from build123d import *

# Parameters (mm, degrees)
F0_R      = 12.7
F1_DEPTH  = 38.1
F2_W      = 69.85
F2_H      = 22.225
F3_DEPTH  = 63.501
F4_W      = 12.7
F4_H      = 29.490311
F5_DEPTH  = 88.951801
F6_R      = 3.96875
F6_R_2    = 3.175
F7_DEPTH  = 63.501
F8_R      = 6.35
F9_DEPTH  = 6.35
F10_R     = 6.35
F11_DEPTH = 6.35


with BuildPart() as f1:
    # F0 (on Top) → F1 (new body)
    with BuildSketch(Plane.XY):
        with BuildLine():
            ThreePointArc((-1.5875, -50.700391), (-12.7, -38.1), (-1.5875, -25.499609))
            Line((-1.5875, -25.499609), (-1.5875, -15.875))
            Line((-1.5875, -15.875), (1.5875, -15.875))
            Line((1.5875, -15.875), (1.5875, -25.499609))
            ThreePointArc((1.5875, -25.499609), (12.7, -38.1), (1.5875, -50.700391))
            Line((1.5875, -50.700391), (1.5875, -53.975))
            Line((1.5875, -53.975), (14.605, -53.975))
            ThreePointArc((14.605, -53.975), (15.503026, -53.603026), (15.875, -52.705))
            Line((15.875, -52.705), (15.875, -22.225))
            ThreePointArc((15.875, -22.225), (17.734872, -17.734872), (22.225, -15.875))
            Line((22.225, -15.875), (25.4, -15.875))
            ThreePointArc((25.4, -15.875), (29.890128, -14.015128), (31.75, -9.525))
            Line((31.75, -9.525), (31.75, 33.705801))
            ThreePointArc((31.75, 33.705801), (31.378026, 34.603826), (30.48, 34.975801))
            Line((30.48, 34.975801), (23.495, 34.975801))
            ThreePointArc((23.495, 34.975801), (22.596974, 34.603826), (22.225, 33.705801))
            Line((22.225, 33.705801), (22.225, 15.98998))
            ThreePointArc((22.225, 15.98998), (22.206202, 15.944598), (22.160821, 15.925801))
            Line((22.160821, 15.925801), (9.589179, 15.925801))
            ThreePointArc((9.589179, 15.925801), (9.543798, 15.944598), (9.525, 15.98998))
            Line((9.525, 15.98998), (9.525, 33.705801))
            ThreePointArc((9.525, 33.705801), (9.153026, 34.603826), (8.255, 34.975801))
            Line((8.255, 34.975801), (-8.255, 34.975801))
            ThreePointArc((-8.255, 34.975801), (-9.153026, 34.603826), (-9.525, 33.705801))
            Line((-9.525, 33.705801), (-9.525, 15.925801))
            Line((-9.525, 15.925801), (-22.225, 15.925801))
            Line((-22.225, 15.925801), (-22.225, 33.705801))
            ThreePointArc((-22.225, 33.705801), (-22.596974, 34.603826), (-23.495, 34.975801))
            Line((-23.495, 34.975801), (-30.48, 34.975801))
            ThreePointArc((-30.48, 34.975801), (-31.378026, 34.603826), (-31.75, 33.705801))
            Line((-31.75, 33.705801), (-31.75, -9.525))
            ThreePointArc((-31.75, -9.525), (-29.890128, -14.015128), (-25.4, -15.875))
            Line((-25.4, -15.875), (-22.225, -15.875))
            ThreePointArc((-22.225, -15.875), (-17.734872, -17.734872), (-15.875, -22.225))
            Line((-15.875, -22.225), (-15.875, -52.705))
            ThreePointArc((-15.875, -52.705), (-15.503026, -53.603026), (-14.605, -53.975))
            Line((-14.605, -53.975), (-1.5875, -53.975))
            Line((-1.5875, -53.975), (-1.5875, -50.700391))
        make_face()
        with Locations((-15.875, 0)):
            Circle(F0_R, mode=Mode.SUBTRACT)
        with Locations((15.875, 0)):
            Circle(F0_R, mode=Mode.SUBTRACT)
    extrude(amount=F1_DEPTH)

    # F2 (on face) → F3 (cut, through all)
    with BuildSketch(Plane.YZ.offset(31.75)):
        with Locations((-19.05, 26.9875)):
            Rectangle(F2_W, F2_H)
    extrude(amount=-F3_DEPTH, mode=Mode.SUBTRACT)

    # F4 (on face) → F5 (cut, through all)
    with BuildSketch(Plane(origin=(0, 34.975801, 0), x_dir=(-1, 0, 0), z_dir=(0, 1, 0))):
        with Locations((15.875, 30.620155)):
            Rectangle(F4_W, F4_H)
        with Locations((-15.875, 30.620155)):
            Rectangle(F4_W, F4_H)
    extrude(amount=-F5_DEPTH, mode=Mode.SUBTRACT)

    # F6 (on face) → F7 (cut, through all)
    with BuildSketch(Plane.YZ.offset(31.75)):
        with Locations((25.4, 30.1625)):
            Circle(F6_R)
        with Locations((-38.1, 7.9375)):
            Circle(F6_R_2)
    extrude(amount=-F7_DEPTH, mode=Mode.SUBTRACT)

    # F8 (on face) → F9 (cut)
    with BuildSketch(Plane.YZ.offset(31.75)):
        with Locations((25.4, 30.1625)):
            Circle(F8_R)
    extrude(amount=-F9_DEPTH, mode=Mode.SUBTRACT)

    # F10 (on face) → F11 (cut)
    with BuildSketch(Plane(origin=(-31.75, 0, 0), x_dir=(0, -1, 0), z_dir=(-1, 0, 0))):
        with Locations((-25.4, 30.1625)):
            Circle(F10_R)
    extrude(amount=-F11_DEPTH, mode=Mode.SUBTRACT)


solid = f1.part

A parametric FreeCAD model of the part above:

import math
import FreeCAD as App
import Part
import Sketcher
Q = App.Units.Quantity

doc = App.newDocument("Part")
body = doc.addObject("PartDesign::Body", "Body")

# Sketch on XY plane
sketch1 = body.newObject("Sketcher::SketchObject", "Sketch")
sketch1.AttachmentSupport = (doc.getObject("XY_Plane"), [""])
sketch1.MapMode = "FlatFace"
sketch1.addGeometry([
    Part.ArcOfCircle(Part.Circle(App.Vector(0, -38.1, 0), App.Vector(0, 0, 1), 12.7), math.radians(97), math.radians(263)),  # 0
    Part.LineSegment(App.Vector(-1.59, -25.5, 0), App.Vector(-1.59, -15.88, 0)),  # 1
    Part.LineSegment(App.Vector(-1.59, -15.88, 0), App.Vector(1.59, -15.88, 0)),  # 2
    Part.LineSegment(App.Vector(1.59, -15.88, 0), App.Vector(1.59, -25.5, 0)),  # 3
    Part.ArcOfCircle(Part.Circle(App.Vector(0, -38.1, 0), App.Vector(0, 0, 1), 12.7), math.radians(-83), math.radians(83)),  # 4
    Part.LineSegment(App.Vector(1.59, -50.7, 0), App.Vector(1.59, -53.98, 0)),  # 5
    Part.LineSegment(App.Vector(1.59, -53.98, 0), App.Vector(14.61, -53.98, 0)),  # 6
    Part.ArcOfCircle(Part.Circle(App.Vector(14.61, -52.71, 0), App.Vector(0, 0, 1), 1.27), math.radians(-90), math.radians(0)),  # 7
    Part.LineSegment(App.Vector(15.88, -52.7, 0), App.Vector(15.88, -22.23, 0)),  # 8
    Part.ArcOfCircle(Part.Circle(App.Vector(22.23, -22.23, 0), App.Vector(0, 0, 1), 6.35), math.radians(90), math.radians(180)),  # 9
    Part.LineSegment(App.Vector(22.23, -15.88, 0), App.Vector(25.4, -15.88, 0)),  # 10
    Part.ArcOfCircle(Part.Circle(App.Vector(25.4, -9.52, 0), App.Vector(0, 0, 1), 6.35), math.radians(-90), math.radians(0)),  # 11
    Part.LineSegment(App.Vector(31.75, -9.53, 0), App.Vector(31.75, 33.71, 0)),  # 12
    Part.ArcOfCircle(Part.Circle(App.Vector(30.48, 33.71, 0), App.Vector(0, 0, 1), 1.27), math.radians(0), math.radians(90)),  # 13
    Part.LineSegment(App.Vector(30.48, 34.98, 0), App.Vector(23.5, 34.98, 0)),  # 14
    Part.ArcOfCircle(Part.Circle(App.Vector(23.5, 33.71, 0), App.Vector(0, 0, 1), 1.27), math.radians(90), math.radians(180)),  # 15
    Part.LineSegment(App.Vector(22.23, 33.71, 0), App.Vector(22.23, 15.99, 0)),  # 16
    Part.ArcOfCircle(Part.Circle(App.Vector(22.16, 15.99, 0), App.Vector(0, 0, 1), 0.06), math.radians(-90), math.radians(0)),  # 17
    Part.LineSegment(App.Vector(22.16, 15.93, 0), App.Vector(9.59, 15.93, 0)),  # 18
    Part.ArcOfCircle(Part.Circle(App.Vector(9.59, 15.99, 0), App.Vector(0, 0, 1), 0.06), math.radians(180), math.radians(270)),  # 19
    Part.LineSegment(App.Vector(9.53, 15.99, 0), App.Vector(9.53, 33.71, 0)),  # 20
    Part.ArcOfCircle(Part.Circle(App.Vector(8.25, 33.71, 0), App.Vector(0, 0, 1), 1.27), math.radians(0), math.radians(90)),  # 21
    Part.LineSegment(App.Vector(8.26, 34.98, 0), App.Vector(-8.26, 34.98, 0)),  # 22
    Part.ArcOfCircle(Part.Circle(App.Vector(-8.25, 33.71, 0), App.Vector(0, 0, 1), 1.27), math.radians(90), math.radians(180)),  # 23
    Part.LineSegment(App.Vector(-9.53, 33.71, 0), App.Vector(-9.53, 15.93, 0)),  # 24
    Part.LineSegment(App.Vector(-9.53, 15.93, 0), App.Vector(-22.23, 15.93, 0)),  # 25
    Part.LineSegment(App.Vector(-22.23, 15.93, 0), App.Vector(-22.23, 33.71, 0)),  # 26
    Part.ArcOfCircle(Part.Circle(App.Vector(-23.5, 33.71, 0), App.Vector(0, 0, 1), 1.27), math.radians(0), math.radians(90)),  # 27
    Part.LineSegment(App.Vector(-23.5, 34.98, 0), App.Vector(-30.48, 34.98, 0)),  # 28
    Part.ArcOfCircle(Part.Circle(App.Vector(-30.48, 33.71, 0), App.Vector(0, 0, 1), 1.27), math.radians(90), math.radians(180)),  # 29
    Part.LineSegment(App.Vector(-31.75, 33.71, 0), App.Vector(-31.75, -9.53, 0)),  # 30
    Part.ArcOfCircle(Part.Circle(App.Vector(-25.4, -9.52, 0), App.Vector(0, 0, 1), 6.35), math.radians(-180), math.radians(-90)),  # 31
    Part.LineSegment(App.Vector(-25.4, -15.88, 0), App.Vector(-22.23, -15.88, 0)),  # 32
    Part.ArcOfCircle(Part.Circle(App.Vector(-22.23, -22.23, 0), App.Vector(0, 0, 1), 6.35), math.radians(0), math.radians(90)),  # 33
    Part.LineSegment(App.Vector(-15.88, -22.23, 0), App.Vector(-15.88, -52.7, 0)),  # 34
    Part.ArcOfCircle(Part.Circle(App.Vector(-14.61, -52.71, 0), App.Vector(0, 0, 1), 1.27), math.radians(180), math.radians(270)),  # 35
    Part.LineSegment(App.Vector(-14.61, -53.98, 0), App.Vector(-1.59, -53.98, 0)),  # 36
    Part.LineSegment(App.Vector(-1.59, -53.98, 0), App.Vector(-1.59, -50.7, 0)),  # 37
    Part.Circle(App.Vector(-15.88, 0, 0), App.Vector(0, 0, 1), 12.7),  # 38
    Part.Circle(App.Vector(15.88, 0, 0), App.Vector(0, 0, 1), 12.7),  # 39
], False)
sketch1.addConstraint([
    Sketcher.Constraint("Coincident", 0, 1, 1, 1),
    Sketcher.Constraint("Coincident", 1, 2, 2, 1),
    Sketcher.Constraint("Coincident", 2, 2, 3, 1),
    Sketcher.Constraint("Coincident", 3, 2, 4, 2),
    Sketcher.Constraint("Coincident", 4, 1, 5, 1),
    Sketcher.Constraint("Coincident", 5, 2, 6, 1),
    Sketcher.Constraint("Tangent", 6, 2, 7, 1),
    Sketcher.Constraint("Tangent", 7, 2, 8, 1),
    Sketcher.Constraint("Tangent", 8, 2, 9, 2),
    Sketcher.Constraint("Tangent", 9, 1, 10, 1),
    Sketcher.Constraint("Tangent", 10, 2, 11, 1),
    Sketcher.Constraint("Tangent", 11, 2, 12, 1),
    Sketcher.Constraint("Tangent", 12, 2, 13, 1),
    Sketcher.Constraint("Tangent", 13, 2, 14, 1),
    Sketcher.Constraint("Tangent", 14, 2, 15, 1),
    Sketcher.Constraint("Tangent", 15, 2, 16, 1),
    Sketcher.Constraint("Coincident", 16, 2, 17, 2),
    Sketcher.Constraint("Coincident", 17, 1, 18, 1),
    Sketcher.Constraint("Coincident", 18, 2, 19, 2),
    Sketcher.Constraint("Coincident", 19, 1, 20, 1),
    Sketcher.Constraint("Tangent", 20, 2, 21, 1),
    Sketcher.Constraint("Tangent", 21, 2, 22, 1),
    Sketcher.Constraint("Tangent", 22, 2, 23, 1),
    Sketcher.Constraint("Tangent", 23, 2, 24, 1),
    Sketcher.Constraint("Coincident", 24, 2, 25, 1),
    Sketcher.Constraint("Coincident", 25, 2, 26, 1),
    Sketcher.Constraint("Tangent", 26, 2, 27, 1),
    Sketcher.Constraint("Tangent", 27, 2, 28, 1),
    Sketcher.Constraint("Tangent", 28, 2, 29, 1),
    Sketcher.Constraint("Tangent", 29, 2, 30, 1),
    Sketcher.Constraint("Tangent", 30, 2, 31, 1),
    Sketcher.Constraint("Tangent", 31, 2, 32, 1),
    Sketcher.Constraint("Tangent", 32, 2, 33, 2),
    Sketcher.Constraint("Tangent", 33, 1, 34, 1),
    Sketcher.Constraint("Tangent", 34, 2, 35, 1),
    Sketcher.Constraint("Tangent", 35, 2, 36, 1),
    Sketcher.Constraint("Coincident", 36, 2, 37, 1),
    Sketcher.Constraint("Coincident", 37, 2, 0, 2),
    Sketcher.Constraint("Vertical", 1),
    Sketcher.Constraint("Horizontal", 2),
    Sketcher.Constraint("Vertical", 3),
    Sketcher.Constraint("Vertical", 5),
    Sketcher.Constraint("Horizontal", 6),
    Sketcher.Constraint("Vertical", 8),
    Sketcher.Constraint("Horizontal", 10),
    Sketcher.Constraint("Vertical", 12),
    Sketcher.Constraint("Horizontal", 14),
    Sketcher.Constraint("Vertical", 16),
    Sketcher.Constraint("Horizontal", 18),
    Sketcher.Constraint("Vertical", 20),
    Sketcher.Constraint("Horizontal", 22),
    Sketcher.Constraint("Vertical", 24),
    Sketcher.Constraint("Horizontal", 25),
    Sketcher.Constraint("Vertical", 26),
    Sketcher.Constraint("Horizontal", 28),
    Sketcher.Constraint("Vertical", 30),
    Sketcher.Constraint("Horizontal", 32),
    Sketcher.Constraint("Vertical", 34),
    Sketcher.Constraint("Horizontal", 36),
    Sketcher.Constraint("Vertical", 37),
    Sketcher.Constraint("Coincident", 4, 3, 0, 3),
    Sketcher.Constraint("Equal", 0, 4),
    Sketcher.Constraint("Equal", 9, 11),
    Sketcher.Constraint("Equal", 7, 13),
    Sketcher.Constraint("Equal", 13, 15),
    Sketcher.Constraint("Equal", 17, 19),
    Sketcher.Constraint("Equal", 15, 21),
    Sketcher.Constraint("Equal", 21, 23),
    Sketcher.Constraint("Equal", 23, 27),
    Sketcher.Constraint("Equal", 27, 29),
    Sketcher.Constraint("Equal", 11, 31),
    Sketcher.Constraint("Equal", 31, 33),
    Sketcher.Constraint("Equal", 29, 35),
    Sketcher.Constraint("Equal", 4, 38),
    Sketcher.Constraint("Equal", 38, 39),
    Sketcher.Constraint("Symmetric", 38, 3, 39, 3, -1, 1),
    Sketcher.Constraint("Symmetric", 15, 3, 27, 3, -2),
    Sketcher.Constraint("Symmetric", 11, 3, 31, 3, -2),
    Sketcher.Constraint("Symmetric", 7, 3, 35, 3, -2),
    Sketcher.Constraint("Symmetric", 0, 1, 3, 2, -2),
    Sketcher.Constraint("PointOnObject", 38, 3, -1),
    Sketcher.Constraint("Horizontal", 15, 3, 21, 3),
    Sketcher.Constraint("Horizontal", 2, 2, 9, 1),
    Sketcher.Constraint("Horizontal", 19, 3, 16, 2),
    Sketcher.Constraint("Horizontal", 16, 2, 19, 1),
    Sketcher.Constraint("Horizontal", 18, 2, 24, 2),
    Sketcher.Constraint("Horizontal", 4, 1, 37, 2),
    Sketcher.Constraint("Vertical", 3, 2, 4, 1),
    Sketcher.Constraint("Vertical", 39, 3, 7, 2),
    Sketcher.Constraint("Vertical", 9, 1, 15, 2),
    Sketcher.Constraint("Vertical", 19, 3, 18, 2),
    Sketcher.Constraint("Equal", 2, 10),
    Sketcher.Constraint("Diameter", 38, Q("1 in")),
    Sketcher.Constraint("Radius", 7, Q("0.0499999 in")),
    Sketcher.Constraint("Radius", 9, Q("0.25 in")),
    Sketcher.Constraint("DistanceX", 25, 2, 25, 1, Q("0.5 in")),
    Sketcher.Constraint("DistanceY", 8, 1, 8, 2, Q("1.2 in")),
    Sketcher.Constraint("DistanceY", 24, 2, 24, 1, Q("0.7 in")),
    Sketcher.Constraint("DistanceX", -1, 1, 11, 3, Q("1 in")),
    Sketcher.Constraint("DistanceX", 22, 2, 22, 1, Q("0.65 in")),
    Sketcher.Constraint("DistanceY", 0, 3, -1, 1, Q("1.5 in")),
    Sketcher.Constraint("DistanceX", 21, 3, 15, 3, Q("0.6 in")),
    Sketcher.Constraint("DistanceY", 12, 1, 12, 2, Q("1.702 in")),
    Sketcher.Constraint("DistanceY", 7, 3, -1, 1, Q("2.0750001 in")),
    Sketcher.Constraint("Radius", 17, 0.064179),
    Sketcher.Constraint("DistanceX", 18, 2, 18, 1, 12.571642),
])
pad1 = body.newObject("PartDesign::Pad", "Pad")
pad1.Profile = sketch1
pad1.Length = Q("1.5 in")

# Sketch on YZ plane
sketch2 = body.newObject("Sketcher::SketchObject", "Sketch001")
sketch2.AttachmentSupport = (doc.getObject("YZ_Plane"), [""])
sketch2.MapMode = "FlatFace"
sketch2.AttachmentOffset = App.Placement(App.Vector(0, 0, 1.25 * 25.4), App.Rotation())
sketch2.addGeometry([
    Part.LineSegment(App.Vector(-54, 38, 0), App.Vector(-54, 16, 0)),
    Part.LineSegment(App.Vector(-54, 16, 0), App.Vector(16, 16, 0)),
    Part.LineSegment(App.Vector(16, 16, 0), App.Vector(16, 38, 0)),
    Part.LineSegment(App.Vector(16, 38, 0), App.Vector(-54, 38, 0)),
], False)
sketch2.addConstraint([
    Sketcher.Constraint("Coincident", 0, 2, 1, 1),
    Sketcher.Constraint("Coincident", 1, 2, 2, 1),
    Sketcher.Constraint("Coincident", 2, 2, 3, 1),
    Sketcher.Constraint("Coincident", 3, 2, 0, 1),
    Sketcher.Constraint("Vertical", 0),
    Sketcher.Constraint("Horizontal", 1),
    Sketcher.Constraint("Vertical", 2),
    Sketcher.Constraint("Horizontal", 3),
    Sketcher.Constraint("DistanceX", 1, 1, 1, 2, Q("2.75 in")),
    Sketcher.Constraint("DistanceY", -1, 1, 2, 2, Q("1.5 in")),
    Sketcher.Constraint("DistanceY", 0, 2, 0, 1, Q("0.875 in")),
    Sketcher.Constraint("DistanceX", 0, 2, -1, 1, Q("2.125 in")),
])
pocket1 = body.newObject("PartDesign::Pocket", "Pocket")
pocket1.Profile = sketch2
pocket1.Type = "ThroughAll"

# Sketch on XZ plane
sketch3 = body.newObject("Sketcher::SketchObject", "Sketch002")
sketch3.AttachmentSupport = (doc.getObject("XZ_Plane"), [""])
sketch3.MapMode = "FlatFace"
sketch3.AttachmentOffset = App.Placement(App.Vector(0, 0, -1.377 * 25.4), App.Rotation())
sketch3.addGeometry([
    Part.LineSegment(App.Vector(-10, 45, 0), App.Vector(-10, 16, 0)),  # 0
    Part.LineSegment(App.Vector(-10, 16, 0), App.Vector(-22, 16, 0)),  # 1
    Part.LineSegment(App.Vector(-22, 16, 0), App.Vector(-22, 45, 0)),  # 2
    Part.LineSegment(App.Vector(-22, 45, 0), App.Vector(-10, 45, 0)),  # 3
    Part.LineSegment(App.Vector(22, 45, 0), App.Vector(22, 16, 0)),  # 4
    Part.LineSegment(App.Vector(22, 16, 0), App.Vector(10, 16, 0)),  # 5
    Part.LineSegment(App.Vector(10, 16, 0), App.Vector(10, 45, 0)),  # 6
    Part.LineSegment(App.Vector(10, 45, 0), App.Vector(22, 45, 0)),  # 7
], False)
sketch3.addConstraint([
    Sketcher.Constraint("Coincident", 0, 2, 1, 1),
    Sketcher.Constraint("Coincident", 1, 2, 2, 1),
    Sketcher.Constraint("Coincident", 2, 2, 3, 1),
    Sketcher.Constraint("Coincident", 3, 2, 0, 1),
    Sketcher.Constraint("Coincident", 4, 2, 5, 1),
    Sketcher.Constraint("Coincident", 5, 2, 6, 1),
    Sketcher.Constraint("Coincident", 6, 2, 7, 1),
    Sketcher.Constraint("Coincident", 7, 2, 4, 1),
    Sketcher.Constraint("Vertical", 0),
    Sketcher.Constraint("Horizontal", 1),
    Sketcher.Constraint("Vertical", 2),
    Sketcher.Constraint("Horizontal", 3),
    Sketcher.Constraint("Vertical", 4),
    Sketcher.Constraint("Horizontal", 5),
    Sketcher.Constraint("Vertical", 6),
    Sketcher.Constraint("Horizontal", 7),
    Sketcher.Constraint("Symmetric", 1, 2, 4, 2, -2),
    Sketcher.Constraint("Symmetric", 3, 2, 6, 2, -2),
    Sketcher.Constraint("DistanceX", 1, 2, 1, 1, Q("0.5 in")),
    Sketcher.Constraint("DistanceX", 0, 2, 4, 2, Q("1.25 in")),
    Sketcher.Constraint("DistanceY", -1, 1, 0, 2, Q("0.625 in")),
    Sketcher.Constraint("DistanceY", 0, 2, 0, 1, 29.490311),
])
pocket2 = body.newObject("PartDesign::Pocket", "Pocket001")
pocket2.Profile = sketch3
pocket2.Type = "ThroughAll"
pocket2.Reversed = True

# Sketch on YZ plane
sketch4 = body.newObject("Sketcher::SketchObject", "Sketch003")
sketch4.AttachmentSupport = (doc.getObject("YZ_Plane"), [""])
sketch4.MapMode = "FlatFace"
sketch4.AttachmentOffset = App.Placement(App.Vector(0, 0, 1.25 * 25.4), App.Rotation())
sketch4.addGeometry([
    Part.Circle(App.Vector(25.4, 30.2, 0), App.Vector(0, 0, 1), 4),
    Part.Circle(App.Vector(-38.1, 7.9, 0), App.Vector(0, 0, 1), 3.2),
], False)
sketch4.addConstraint([
    Sketcher.Constraint("Diameter", 1, Q("0.25 in")),
    Sketcher.Constraint("Diameter", 0, Q("0.3125 in")),
    Sketcher.Constraint("DistanceX", -1, 1, 0, 3, Q("1 in")),
    Sketcher.Constraint("DistanceX", 1, 3, -1, 1, Q("1.5 in")),
    Sketcher.Constraint("DistanceY", -1, 1, 0, 3, Q("1.1875 in")),
    Sketcher.Constraint("DistanceY", -1, 1, 1, 3, Q("0.3125 in")),
])
pocket3 = body.newObject("PartDesign::Pocket", "Pocket002")
pocket3.Profile = sketch4
pocket3.Type = "ThroughAll"

# Sketch on YZ plane
sketch5 = body.newObject("Sketcher::SketchObject", "Sketch004")
sketch5.AttachmentSupport = (doc.getObject("YZ_Plane"), [""])
sketch5.MapMode = "FlatFace"
sketch5.AttachmentOffset = App.Placement(App.Vector(0, 0, 1.25 * 25.4), App.Rotation())
sketch5.addGeometry(Part.Circle(App.Vector(25, 30, 0), App.Vector(0, 0, 1), 6), False)
sketch5.addConstraint([
    Sketcher.Constraint("Diameter", 0, Q("0.5 in")),
    Sketcher.Constraint("DistanceX", -1, 1, 0, 3, Q("1 in")),
    Sketcher.Constraint("DistanceY", -1, 1, 0, 3, Q("1.1875 in")),
])
pocket4 = body.newObject("PartDesign::Pocket", "Pocket003")
pocket4.Profile = sketch5
pocket4.Length = Q("0.25 in")

# Sketch on YZ plane
sketch6 = body.newObject("Sketcher::SketchObject", "Sketch005")
sketch6.AttachmentSupport = (doc.getObject("YZ_Plane"), [""])
sketch6.MapMode = "FlatFace"
sketch6.AttachmentOffset = App.Placement(App.Vector(0, 0, -1.25 * 25.4), App.Rotation())
sketch6.addGeometry(Part.Circle(App.Vector(25, 30, 0), App.Vector(0, 0, 1), 6), False)
sketch6.addConstraint([
    Sketcher.Constraint("Diameter", 0, Q("0.5 in")),
    Sketcher.Constraint("DistanceX", -1, 1, 0, 3, Q("1 in")),
    Sketcher.Constraint("DistanceY", -1, 1, 0, 3, Q("1.1875 in")),
])
pocket5 = body.newObject("PartDesign::Pocket", "Pocket004")
pocket5.Profile = sketch6
pocket5.Length = Q("0.25 in")
pocket5.Reversed = True

doc.recompute()
